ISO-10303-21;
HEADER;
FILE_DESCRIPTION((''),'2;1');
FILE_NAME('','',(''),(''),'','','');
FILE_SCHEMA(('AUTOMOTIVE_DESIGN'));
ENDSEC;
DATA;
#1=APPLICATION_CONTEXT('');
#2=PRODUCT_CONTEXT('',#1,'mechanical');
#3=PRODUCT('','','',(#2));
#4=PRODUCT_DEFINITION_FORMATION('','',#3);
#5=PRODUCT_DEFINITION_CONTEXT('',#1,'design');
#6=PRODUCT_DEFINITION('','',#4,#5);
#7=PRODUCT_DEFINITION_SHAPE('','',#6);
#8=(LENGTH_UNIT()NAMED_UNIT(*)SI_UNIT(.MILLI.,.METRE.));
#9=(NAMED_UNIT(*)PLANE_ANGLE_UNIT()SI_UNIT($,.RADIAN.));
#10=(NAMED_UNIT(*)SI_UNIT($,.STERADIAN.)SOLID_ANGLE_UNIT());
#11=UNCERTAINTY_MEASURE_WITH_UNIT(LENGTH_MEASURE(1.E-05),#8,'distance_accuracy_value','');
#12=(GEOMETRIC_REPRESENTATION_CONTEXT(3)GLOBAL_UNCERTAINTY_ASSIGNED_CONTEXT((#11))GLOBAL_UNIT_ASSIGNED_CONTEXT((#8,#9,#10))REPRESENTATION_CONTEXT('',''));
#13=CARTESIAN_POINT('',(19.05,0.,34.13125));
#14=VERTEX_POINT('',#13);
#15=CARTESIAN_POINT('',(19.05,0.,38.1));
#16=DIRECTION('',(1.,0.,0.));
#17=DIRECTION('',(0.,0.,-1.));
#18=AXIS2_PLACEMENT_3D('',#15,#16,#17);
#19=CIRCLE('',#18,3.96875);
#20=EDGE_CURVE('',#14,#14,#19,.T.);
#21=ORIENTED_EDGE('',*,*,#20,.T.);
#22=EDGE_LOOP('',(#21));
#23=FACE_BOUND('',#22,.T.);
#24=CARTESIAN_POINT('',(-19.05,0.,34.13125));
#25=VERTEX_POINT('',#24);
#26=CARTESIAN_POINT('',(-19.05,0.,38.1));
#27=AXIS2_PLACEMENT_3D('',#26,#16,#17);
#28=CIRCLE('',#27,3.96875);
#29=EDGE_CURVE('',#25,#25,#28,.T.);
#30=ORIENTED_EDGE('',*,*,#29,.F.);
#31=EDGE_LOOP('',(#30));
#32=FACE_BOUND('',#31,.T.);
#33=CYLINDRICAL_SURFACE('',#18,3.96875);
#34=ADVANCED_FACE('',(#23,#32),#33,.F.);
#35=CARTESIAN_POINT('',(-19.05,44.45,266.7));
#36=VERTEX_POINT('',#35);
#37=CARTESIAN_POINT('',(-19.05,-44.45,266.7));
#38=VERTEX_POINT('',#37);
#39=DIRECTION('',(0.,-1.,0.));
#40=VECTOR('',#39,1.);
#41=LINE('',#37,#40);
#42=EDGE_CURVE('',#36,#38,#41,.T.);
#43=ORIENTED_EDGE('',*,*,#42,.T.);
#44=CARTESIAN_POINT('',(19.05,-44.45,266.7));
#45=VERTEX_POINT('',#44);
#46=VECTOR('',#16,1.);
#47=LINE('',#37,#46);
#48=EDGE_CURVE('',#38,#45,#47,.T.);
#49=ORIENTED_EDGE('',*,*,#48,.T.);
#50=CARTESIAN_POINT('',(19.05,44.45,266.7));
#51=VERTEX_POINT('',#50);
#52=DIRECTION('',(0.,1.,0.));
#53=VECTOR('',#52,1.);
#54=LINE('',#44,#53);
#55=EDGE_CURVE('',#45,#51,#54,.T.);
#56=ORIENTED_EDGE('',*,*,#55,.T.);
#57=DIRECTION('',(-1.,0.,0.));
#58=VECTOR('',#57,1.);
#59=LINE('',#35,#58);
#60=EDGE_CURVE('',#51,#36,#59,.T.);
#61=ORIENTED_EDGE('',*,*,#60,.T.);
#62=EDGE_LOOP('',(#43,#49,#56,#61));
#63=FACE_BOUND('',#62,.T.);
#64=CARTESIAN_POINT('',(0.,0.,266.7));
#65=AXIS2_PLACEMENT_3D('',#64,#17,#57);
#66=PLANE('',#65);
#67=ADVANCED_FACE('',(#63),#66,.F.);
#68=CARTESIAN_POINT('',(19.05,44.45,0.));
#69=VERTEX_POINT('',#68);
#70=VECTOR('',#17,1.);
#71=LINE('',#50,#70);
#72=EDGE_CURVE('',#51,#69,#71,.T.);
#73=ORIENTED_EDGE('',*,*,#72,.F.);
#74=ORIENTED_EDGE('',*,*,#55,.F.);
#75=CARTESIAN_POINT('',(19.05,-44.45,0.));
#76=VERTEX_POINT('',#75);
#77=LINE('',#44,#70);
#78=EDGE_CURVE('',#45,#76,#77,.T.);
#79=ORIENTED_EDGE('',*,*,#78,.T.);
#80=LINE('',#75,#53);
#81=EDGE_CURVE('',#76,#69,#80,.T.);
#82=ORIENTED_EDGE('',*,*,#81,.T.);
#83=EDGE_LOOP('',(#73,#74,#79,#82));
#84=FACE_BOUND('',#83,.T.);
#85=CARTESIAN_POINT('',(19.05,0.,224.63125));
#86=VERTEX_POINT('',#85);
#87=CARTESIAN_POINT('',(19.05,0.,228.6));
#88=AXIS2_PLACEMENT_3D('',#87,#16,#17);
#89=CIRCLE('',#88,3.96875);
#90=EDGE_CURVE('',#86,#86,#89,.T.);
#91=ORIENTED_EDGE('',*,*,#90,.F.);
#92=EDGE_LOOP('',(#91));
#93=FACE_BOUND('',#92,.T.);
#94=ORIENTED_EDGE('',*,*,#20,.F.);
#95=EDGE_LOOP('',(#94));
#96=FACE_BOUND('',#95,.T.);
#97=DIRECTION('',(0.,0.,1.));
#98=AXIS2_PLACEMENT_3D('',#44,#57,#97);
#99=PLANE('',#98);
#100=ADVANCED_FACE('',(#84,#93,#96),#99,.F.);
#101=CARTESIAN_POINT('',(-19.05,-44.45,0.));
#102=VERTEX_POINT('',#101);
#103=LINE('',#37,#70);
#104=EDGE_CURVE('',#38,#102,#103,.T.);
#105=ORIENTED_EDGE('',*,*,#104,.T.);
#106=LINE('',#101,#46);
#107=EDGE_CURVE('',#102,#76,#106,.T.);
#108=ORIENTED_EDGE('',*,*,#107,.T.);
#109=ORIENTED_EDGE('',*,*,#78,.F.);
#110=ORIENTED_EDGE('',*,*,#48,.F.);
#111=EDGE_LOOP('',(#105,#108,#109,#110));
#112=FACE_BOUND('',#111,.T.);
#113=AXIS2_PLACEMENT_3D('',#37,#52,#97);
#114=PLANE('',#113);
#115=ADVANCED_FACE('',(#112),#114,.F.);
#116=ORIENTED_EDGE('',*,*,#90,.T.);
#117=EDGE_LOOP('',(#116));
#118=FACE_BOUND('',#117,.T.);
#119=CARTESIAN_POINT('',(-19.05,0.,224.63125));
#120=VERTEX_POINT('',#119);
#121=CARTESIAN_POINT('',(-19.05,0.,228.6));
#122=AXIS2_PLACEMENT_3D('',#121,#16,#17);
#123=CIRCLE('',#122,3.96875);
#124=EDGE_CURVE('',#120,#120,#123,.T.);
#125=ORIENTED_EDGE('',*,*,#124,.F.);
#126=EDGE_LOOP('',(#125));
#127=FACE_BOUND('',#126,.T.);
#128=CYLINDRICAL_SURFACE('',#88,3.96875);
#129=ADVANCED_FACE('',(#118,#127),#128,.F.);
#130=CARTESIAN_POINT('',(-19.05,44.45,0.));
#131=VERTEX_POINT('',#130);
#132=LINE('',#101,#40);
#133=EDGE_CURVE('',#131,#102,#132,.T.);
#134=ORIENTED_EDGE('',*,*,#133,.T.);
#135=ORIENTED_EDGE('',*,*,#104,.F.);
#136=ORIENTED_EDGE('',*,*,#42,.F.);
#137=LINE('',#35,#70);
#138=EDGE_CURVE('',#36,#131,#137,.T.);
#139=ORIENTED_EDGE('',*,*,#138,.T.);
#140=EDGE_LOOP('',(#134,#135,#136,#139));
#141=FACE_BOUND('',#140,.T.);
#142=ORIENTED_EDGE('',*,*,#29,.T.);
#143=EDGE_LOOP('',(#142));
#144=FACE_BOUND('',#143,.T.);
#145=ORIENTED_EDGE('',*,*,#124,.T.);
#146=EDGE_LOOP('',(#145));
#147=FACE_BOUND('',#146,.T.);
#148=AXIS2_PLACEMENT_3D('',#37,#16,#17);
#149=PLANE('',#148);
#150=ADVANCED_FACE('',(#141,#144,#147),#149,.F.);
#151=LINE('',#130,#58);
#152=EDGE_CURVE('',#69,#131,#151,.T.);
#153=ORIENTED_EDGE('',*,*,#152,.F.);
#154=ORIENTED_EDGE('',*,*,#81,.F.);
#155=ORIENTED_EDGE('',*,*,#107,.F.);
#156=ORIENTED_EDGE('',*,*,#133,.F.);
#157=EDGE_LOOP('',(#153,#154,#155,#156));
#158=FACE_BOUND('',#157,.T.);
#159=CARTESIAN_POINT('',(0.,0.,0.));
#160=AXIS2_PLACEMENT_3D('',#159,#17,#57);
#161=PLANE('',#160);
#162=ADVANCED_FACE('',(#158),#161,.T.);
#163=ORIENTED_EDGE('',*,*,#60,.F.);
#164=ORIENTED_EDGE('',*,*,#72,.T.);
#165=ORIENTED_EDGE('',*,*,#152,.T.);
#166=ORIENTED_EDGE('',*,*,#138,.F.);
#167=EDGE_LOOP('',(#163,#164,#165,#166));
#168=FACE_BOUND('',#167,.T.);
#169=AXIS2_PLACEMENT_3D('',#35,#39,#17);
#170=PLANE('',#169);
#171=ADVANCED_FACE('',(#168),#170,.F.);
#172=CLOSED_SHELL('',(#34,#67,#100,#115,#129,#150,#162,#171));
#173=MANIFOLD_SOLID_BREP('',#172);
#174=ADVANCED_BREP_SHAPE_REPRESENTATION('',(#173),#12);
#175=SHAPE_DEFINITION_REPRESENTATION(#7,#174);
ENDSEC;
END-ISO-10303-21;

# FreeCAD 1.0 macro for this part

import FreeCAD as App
import Part
import Sketcher
from FreeCAD import Vector
Q = App.Units.Quantity

doc = App.newDocument("Part")
body = doc.addObject("PartDesign::Body", "Body")

# Sketch on XY plane
sketch1 = doc.addObject("Sketcher::SketchObject", "Sketch")
body.addObject(sketch1)
sketch1.AttachmentSupport = (doc.XY_Plane, [""])
sketch1.MapMode = "FlatFace"
sketch1.addGeometry([
    Part.LineSegment(Vector(-19, 44, 0), Vector(-19, -44, 0)),
    Part.LineSegment(Vector(-19, -44, 0), Vector(19, -44, 0)),
    Part.LineSegment(Vector(19, -44, 0), Vector(19, 44, 0)),
    Part.LineSegment(Vector(19, 44, 0), Vector(-19, 44, 0)),
], False)
sketch1.addConstraint([
    Sketcher.Constraint("Coincident", 0, 2, 1, 1),
    Sketcher.Constraint("Coincident", 1, 2, 2, 1),
    Sketcher.Constraint("Coincident", 2, 2, 3, 1),
    Sketcher.Constraint("Coincident", 3, 2, 0, 1),
    Sketcher.Constraint("Vertical", 0),
    Sketcher.Constraint("Horizontal", 1),
    Sketcher.Constraint("Vertical", 2),
    Sketcher.Constraint("Horizontal", 3),
    Sketcher.Constraint("Symmetric", 0, 2, 2, 2, -1, 1),
    Sketcher.Constraint("DistanceX", 1, 1, 1, 2, Q("1.5 in")),
    Sketcher.Constraint("DistanceY", 0, 2, 0, 1, Q("3.5 in")),
])
pad1 = doc.addObject("PartDesign::Pad", "Pad")
body.addObject(pad1)
pad1.Profile = sketch1
pad1.Length = Q("10.5 in")

# Sketch on YZ plane
sketch2 = doc.addObject("Sketcher::SketchObject", "Sketch001")
body.addObject(sketch2)
sketch2.AttachmentSupport = (doc.YZ_Plane, [""])
sketch2.MapMode = "FlatFace"
sketch2.AttachmentOffset = App.Placement(Vector(0, 0, 0.75 * 25.4), App.Rotation())
sketch2.addGeometry([
    Part.Circle(Vector(0, 228.6, 0), Vector(0, 0, 1), 4),
    Part.Circle(Vector(0, 38.1, 0), Vector(0, 0, 1), 4),
], False)
sketch2.addConstraint([
    Sketcher.Constraint("Equal", 0, 1),
    Sketcher.Constraint("PointOnObject", 0, 3, -2),
    Sketcher.Constraint("PointOnObject", 1, 3, -2),
    Sketcher.Constraint("Diameter", 0, Q("0.3125 in")),
    Sketcher.Constraint("DistanceY", -1, 1, 0, 3, Q("9 in")),
    Sketcher.Constraint("DistanceY", -1, 1, 1, 3, Q("1.5 in")),
])
doc.recompute()
hole = doc.addObject("PartDesign::Hole", "Hole")
body.addObject(hole)
hole.Profile = sketch2
hole.ThreadType = "None"
hole.Diameter = Q("0.3125 in")
hole.DepthType = "ThroughAll"

doc.recompute()
